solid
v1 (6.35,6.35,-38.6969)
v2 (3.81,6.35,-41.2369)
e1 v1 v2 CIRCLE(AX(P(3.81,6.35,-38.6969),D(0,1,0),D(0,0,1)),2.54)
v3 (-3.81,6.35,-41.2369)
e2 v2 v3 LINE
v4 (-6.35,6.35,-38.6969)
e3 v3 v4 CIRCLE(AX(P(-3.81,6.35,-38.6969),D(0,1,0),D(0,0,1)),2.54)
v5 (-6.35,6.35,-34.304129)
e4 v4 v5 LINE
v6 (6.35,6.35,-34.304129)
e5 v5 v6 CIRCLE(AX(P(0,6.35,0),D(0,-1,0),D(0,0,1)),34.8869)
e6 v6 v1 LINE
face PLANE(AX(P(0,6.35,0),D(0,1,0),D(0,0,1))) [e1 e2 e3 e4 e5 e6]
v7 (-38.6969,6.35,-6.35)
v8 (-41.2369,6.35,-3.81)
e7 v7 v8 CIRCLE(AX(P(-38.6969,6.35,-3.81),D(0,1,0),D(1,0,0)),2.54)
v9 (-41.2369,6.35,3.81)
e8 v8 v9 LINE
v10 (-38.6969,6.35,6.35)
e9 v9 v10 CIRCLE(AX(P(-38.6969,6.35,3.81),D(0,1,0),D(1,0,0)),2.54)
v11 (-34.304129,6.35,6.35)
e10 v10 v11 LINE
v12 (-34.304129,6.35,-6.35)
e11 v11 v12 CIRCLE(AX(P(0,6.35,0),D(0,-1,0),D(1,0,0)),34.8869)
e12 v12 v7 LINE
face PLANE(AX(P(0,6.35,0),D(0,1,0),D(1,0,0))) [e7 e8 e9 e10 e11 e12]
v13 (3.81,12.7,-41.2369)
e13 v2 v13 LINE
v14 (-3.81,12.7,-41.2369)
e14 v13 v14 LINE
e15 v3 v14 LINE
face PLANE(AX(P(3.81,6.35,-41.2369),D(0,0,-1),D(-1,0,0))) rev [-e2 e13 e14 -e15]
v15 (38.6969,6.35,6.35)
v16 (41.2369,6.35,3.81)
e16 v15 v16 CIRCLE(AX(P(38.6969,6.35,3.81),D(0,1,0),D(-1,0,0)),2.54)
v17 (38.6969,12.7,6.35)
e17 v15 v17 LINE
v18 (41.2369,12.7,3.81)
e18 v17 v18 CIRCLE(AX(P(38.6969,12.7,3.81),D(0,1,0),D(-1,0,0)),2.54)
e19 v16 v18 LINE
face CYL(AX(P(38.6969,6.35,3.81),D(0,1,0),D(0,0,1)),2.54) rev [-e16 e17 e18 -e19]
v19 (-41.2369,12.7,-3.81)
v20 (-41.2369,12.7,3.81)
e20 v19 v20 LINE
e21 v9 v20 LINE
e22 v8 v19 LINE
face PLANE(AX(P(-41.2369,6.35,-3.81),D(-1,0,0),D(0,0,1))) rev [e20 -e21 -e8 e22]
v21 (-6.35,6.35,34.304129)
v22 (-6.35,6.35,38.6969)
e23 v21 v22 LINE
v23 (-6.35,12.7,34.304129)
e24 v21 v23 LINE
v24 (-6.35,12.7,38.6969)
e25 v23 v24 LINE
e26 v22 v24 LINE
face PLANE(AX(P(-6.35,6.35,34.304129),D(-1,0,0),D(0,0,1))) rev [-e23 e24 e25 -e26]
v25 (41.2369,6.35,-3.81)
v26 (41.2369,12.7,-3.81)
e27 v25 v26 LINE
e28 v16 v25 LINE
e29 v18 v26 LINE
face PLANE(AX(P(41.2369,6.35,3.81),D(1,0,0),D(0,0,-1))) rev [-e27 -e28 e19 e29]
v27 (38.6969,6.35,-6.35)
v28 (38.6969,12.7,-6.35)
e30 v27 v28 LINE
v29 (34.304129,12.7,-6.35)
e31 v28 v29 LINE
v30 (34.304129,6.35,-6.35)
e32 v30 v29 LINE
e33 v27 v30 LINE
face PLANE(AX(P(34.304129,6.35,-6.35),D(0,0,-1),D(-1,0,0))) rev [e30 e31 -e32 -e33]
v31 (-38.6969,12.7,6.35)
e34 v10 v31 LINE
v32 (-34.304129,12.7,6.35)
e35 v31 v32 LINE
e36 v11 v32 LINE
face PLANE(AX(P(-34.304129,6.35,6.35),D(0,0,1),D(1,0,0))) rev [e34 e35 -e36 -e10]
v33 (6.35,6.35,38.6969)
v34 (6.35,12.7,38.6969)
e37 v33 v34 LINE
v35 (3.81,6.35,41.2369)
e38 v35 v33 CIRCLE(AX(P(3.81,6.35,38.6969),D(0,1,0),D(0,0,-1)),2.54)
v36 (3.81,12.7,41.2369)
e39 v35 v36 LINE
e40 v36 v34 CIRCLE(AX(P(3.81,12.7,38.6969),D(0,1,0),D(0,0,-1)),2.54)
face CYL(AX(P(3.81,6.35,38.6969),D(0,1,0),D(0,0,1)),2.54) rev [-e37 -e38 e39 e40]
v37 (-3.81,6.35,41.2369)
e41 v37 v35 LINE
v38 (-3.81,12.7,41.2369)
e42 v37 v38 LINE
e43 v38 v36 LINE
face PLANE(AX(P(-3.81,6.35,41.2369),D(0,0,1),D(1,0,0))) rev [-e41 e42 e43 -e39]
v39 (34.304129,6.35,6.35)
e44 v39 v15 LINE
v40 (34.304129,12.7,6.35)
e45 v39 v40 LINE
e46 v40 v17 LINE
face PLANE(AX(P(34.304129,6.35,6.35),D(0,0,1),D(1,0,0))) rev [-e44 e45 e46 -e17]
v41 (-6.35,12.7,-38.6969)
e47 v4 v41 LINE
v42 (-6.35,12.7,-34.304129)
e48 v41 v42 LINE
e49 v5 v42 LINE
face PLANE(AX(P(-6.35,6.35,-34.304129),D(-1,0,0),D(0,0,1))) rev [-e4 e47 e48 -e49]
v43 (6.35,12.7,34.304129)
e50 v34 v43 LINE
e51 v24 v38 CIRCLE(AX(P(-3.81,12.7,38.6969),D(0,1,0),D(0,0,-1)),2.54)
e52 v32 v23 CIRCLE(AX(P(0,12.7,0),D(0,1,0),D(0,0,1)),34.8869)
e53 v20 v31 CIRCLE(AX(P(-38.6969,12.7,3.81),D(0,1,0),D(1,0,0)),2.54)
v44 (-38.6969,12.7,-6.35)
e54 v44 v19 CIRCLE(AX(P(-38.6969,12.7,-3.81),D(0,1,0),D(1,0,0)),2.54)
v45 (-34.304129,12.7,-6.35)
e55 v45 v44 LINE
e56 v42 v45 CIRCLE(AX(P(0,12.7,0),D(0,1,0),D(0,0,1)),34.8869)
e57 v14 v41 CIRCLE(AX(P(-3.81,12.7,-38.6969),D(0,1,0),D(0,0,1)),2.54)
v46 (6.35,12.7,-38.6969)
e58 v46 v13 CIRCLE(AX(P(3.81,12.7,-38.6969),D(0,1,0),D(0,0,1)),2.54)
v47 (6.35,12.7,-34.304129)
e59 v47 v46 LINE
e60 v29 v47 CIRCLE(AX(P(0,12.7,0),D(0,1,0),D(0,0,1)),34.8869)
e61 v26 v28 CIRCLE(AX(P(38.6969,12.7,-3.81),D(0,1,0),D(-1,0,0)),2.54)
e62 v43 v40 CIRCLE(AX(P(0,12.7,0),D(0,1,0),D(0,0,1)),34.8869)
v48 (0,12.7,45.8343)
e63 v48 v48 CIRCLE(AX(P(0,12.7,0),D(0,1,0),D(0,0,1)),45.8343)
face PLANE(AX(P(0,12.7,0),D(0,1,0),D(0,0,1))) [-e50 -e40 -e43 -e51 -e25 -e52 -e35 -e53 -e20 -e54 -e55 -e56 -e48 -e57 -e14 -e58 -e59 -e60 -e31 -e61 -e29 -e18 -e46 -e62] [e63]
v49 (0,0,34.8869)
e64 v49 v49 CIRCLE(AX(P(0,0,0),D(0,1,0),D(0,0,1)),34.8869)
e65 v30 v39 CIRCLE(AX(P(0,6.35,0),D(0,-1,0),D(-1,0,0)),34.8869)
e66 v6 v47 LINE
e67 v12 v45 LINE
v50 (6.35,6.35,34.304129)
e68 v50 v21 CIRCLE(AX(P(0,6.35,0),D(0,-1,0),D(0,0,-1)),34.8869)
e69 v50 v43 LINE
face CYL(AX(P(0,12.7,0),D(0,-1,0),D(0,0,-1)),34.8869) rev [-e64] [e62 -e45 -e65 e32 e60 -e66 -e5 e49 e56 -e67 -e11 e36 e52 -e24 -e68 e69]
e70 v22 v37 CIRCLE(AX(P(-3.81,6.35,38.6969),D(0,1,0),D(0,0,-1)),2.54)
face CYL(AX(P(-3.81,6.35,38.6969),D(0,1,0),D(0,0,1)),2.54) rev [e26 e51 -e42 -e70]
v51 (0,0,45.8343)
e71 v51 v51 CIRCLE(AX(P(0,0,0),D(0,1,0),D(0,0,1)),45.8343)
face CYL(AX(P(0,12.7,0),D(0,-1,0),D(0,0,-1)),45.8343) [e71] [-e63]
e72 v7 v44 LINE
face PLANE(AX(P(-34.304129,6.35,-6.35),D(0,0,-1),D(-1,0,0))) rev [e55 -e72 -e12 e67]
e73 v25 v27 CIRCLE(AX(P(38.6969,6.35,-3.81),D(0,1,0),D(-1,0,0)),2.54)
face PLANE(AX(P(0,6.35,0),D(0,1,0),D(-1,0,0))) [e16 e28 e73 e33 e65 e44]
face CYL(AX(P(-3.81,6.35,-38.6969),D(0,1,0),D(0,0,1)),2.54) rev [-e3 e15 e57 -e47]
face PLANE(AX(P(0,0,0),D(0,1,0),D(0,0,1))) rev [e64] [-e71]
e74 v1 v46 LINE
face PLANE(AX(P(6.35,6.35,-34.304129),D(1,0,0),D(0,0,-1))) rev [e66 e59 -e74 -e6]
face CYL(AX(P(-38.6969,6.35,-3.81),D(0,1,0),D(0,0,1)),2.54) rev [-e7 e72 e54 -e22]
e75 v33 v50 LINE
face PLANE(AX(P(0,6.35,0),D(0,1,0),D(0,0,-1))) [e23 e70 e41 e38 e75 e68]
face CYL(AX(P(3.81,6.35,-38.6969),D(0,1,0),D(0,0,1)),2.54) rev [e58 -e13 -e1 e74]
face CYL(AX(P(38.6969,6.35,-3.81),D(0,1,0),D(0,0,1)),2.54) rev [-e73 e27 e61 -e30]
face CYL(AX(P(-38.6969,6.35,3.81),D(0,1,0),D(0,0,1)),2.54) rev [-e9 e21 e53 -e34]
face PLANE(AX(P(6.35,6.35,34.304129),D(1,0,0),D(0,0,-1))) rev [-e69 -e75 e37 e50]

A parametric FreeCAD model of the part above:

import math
import FreeCAD as App
import Part
import Sketcher

V = App.Vector
Q = App.Units.Quantity

doc = App.newDocument("Part")
body = doc.addObject("PartDesign::Body", "Body")

sketch1 = body.newObject("Sketcher::SketchObject", "Sketch")
sketch1.AttachmentSupport = (doc.getObject("XZ_Plane"), [""])
sketch1.MapMode = "FlatFace"
sketch1.addGeometry(Part.Circle(V(0, 0, 0), V(0, 0, 1), 45.8343), False)
sketch1.addGeometry(Part.Circle(V(0, 0, 0), V(0, 0, 1), 34.8869), False)
sketch1.addConstraint(Sketcher.Constraint("Coincident", 0, 3, -1, 1))
sketch1.addConstraint(Sketcher.Constraint("Coincident", 1, 3, -1, 1))
sketch1.addConstraint(Sketcher.Constraint("Diameter", 0, Q("3.609 in")))
sketch1.addConstraint(Sketcher.Constraint("Diameter", 1, Q("2.747 in")))
pad1 = body.newObject("PartDesign::Pad", "Pad")
pad1.Profile = sketch1
pad1.Length = Q("0.5 in")
pad1.Reversed = True

sketch2 = body.newObject("Sketcher::SketchObject", "Sketch001")
sketch2.AttachmentSupport = (doc.getObject("XZ_Plane"), [""])
sketch2.MapMode = "FlatFace"
sketch2.AttachmentOffset = App.Placement(V(0, 0, -0.25 * 25.4), App.Rotation())
sketch2.addGeometry(Part.LineSegment(V(6.35, -34.304129, 0), V(6.35, -38.6969, 0)), False)
sketch2.addGeometry(Part.ArcOfCircle(Part.Circle(V(3.81, -38.6969, 0), V(0, 0, 1), 2.54), math.radians(-90), math.radians(0)), False)
sketch2.addGeometry(Part.LineSegment(V(3.81, -41.2369, 0), V(-3.81, -41.2369, 0)), False)
sketch2.addGeometry(Part.ArcOfCircle(Part.Circle(V(-3.81, -38.6969, 0), V(0, 0, 1), 2.54), math.radians(-180), math.radians(-90)), False)
sketch2.addGeometry(Part.LineSegment(V(-6.35, -38.6969, 0), V(-6.35, -34.304129, 0)), False)
sketch2.addGeometry(Part.ArcOfCircle(Part.Circle(V(0, 0, 0), V(0, 0, 1), 34.8869), math.radians(-100.487252), math.radians(-79.512748)), False)
sketch2.addConstraint(Sketcher.Constraint("Tangent", 0, 2, 1, 2))
sketch2.addConstraint(Sketcher.Constraint("Tangent", 1, 1, 2, 1))
sketch2.addConstraint(Sketcher.Constraint("Tangent", 2, 2, 3, 2))
sketch2.addConstraint(Sketcher.Constraint("Tangent", 3, 1, 4, 1))
sketch2.addConstraint(Sketcher.Constraint("Coincident", 4, 2, 5, 1))
sketch2.addConstraint(Sketcher.Constraint("Coincident", 5, 2, 0, 1))
sketch2.addConstraint(Sketcher.Constraint("Vertical", 0))
sketch2.addConstraint(Sketcher.Constraint("Horizontal", 2))
sketch2.addConstraint(Sketcher.Constraint("Vertical", 4))
sketch2.addConstraint(Sketcher.Constraint("Coincident", 5, 3, -1, 1))
sketch2.addConstraint(Sketcher.Constraint("Equal", 1, 3))
sketch2.addConstraint(Sketcher.Constraint("Horizontal", 4, 2, 5, 2))
sketch2.addConstraint(Sketcher.Constraint("Radius", 1, Q("0.1 in")))
sketch2.addConstraint(Sketcher.Constraint("DistanceX", 2, 2, 2, 1, Q("0.3 in")))
sketch2.addConstraint(Sketcher.Constraint("Radius", 5, Q("1.3735 in")))
sketch2.addConstraint(Sketcher.Constraint("DistanceY", 1, 3, -1, 1, Q("1.5235 in")))
pocket1 = body.newObject("PartDesign::Pocket", "Pocket")
pocket1.Profile = sketch2
pocket1.Length = Q("0.25 in")
doc.recompute()

polarpattern = body.newObject("PartDesign::PolarPattern", "PolarPattern")
polarpattern.Originals = [pocket1]
polarpattern.Axis = (doc.getObject("Y_Axis"), [""])
polarpattern.Angle = 360
polarpattern.Occurrences = 4
body.Tip = polarpattern

doc.recompute()
